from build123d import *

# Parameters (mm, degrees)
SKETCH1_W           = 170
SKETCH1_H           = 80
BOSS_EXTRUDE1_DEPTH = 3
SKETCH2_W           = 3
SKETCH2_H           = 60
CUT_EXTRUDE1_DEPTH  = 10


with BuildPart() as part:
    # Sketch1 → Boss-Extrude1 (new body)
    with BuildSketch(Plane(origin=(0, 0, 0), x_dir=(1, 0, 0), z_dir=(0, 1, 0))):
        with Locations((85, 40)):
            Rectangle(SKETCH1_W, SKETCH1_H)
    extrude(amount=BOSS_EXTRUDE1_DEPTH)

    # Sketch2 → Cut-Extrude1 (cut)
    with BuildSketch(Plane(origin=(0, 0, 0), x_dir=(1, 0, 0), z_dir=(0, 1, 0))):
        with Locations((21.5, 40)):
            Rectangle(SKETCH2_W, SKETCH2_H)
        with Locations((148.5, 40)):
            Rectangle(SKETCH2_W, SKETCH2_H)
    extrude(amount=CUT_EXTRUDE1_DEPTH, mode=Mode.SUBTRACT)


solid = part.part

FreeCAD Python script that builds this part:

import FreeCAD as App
import Part
import Sketcher
from FreeCAD import Vector
Q = App.Units.Quantity

doc = App.newDocument("Part")
body = doc.addObject("PartDesign::Body", "Body")

# Sketch on XZ plane
sketch1 = body.newObject("Sketcher::SketchObject", "Sketch")
sketch1.AttachmentSupport = (doc.getObject("XZ_Plane"), [""])
sketch1.MapMode = "FlatFace"
sketch1.addGeometry([
    Part.LineSegment(Vector(0, -80, 0), Vector(0, 0, 0)),
    Part.LineSegment(Vector(0, 0, 0), Vector(170, 0, 0)),
    Part.LineSegment(Vector(170, 0, 0), Vector(170, -80, 0)),
    Part.LineSegment(Vector(170, -80, 0), Vector(0, -80, 0)),
], False)
sketch1.addConstraint([
    Sketcher.Constraint("Coincident", 0, 2, 1, 1),
    Sketcher.Constraint("Coincident", 1, 2, 2, 1),
    Sketcher.Constraint("Coincident", 2, 2, 3, 1),
    Sketcher.Constraint("Coincident", 3, 2, 0, 1),
    Sketcher.Constraint("Vertical", 0),
    Sketcher.Constraint("Horizontal", 1),
    Sketcher.Constraint("Vertical", 2),
    Sketcher.Constraint("Horizontal", 3),
    Sketcher.Constraint("Coincident", 0, 2, -1, 1),
    Sketcher.Constraint("DistanceX", 1, 1, 1, 2, Q("170 mm")),
    Sketcher.Constraint("DistanceY", 0, 1, 0, 2, Q("80 mm")),
])
pad1 = body.newObject("PartDesign::Pad", "Pad")
pad1.Profile = sketch1
pad1.Length = 3
pad1.Reversed = True

# Sketch on XZ plane
sketch2 = body.newObject("Sketcher::SketchObject", "Sketch001")
sketch2.AttachmentSupport = (doc.getObject("XZ_Plane"), [""])
sketch2.MapMode = "FlatFace"
sketch2.addGeometry([
    Part.LineSegment(Vector(20, -70, 0), Vector(20, -10, 0)),  # 0
    Part.LineSegment(Vector(20, -10, 0), Vector(23, -10, 0)),  # 1
    Part.LineSegment(Vector(23, -10, 0), Vector(23, -70, 0)),  # 2
    Part.LineSegment(Vector(23, -70, 0), Vector(20, -70, 0)),  # 3
    Part.LineSegment(Vector(147, -70, 0), Vector(147, -10, 0)),  # 4
    Part.LineSegment(Vector(147, -10, 0), Vector(150, -10, 0)),  # 5
    Part.LineSegment(Vector(150, -10, 0), Vector(150, -70, 0)),  # 6
    Part.LineSegment(Vector(150, -70, 0), Vector(147, -70, 0)),  # 7
], False)
sketch2.addConstraint([
    Sketcher.Constraint("Coincident", 0, 2, 1, 1),
    Sketcher.Constraint("Coincident", 1, 2, 2, 1),
    Sketcher.Constraint("Coincident", 2, 2, 3, 1),
    Sketcher.Constraint("Coincident", 3, 2, 0, 1),
    Sketcher.Constraint("Coincident", 4, 2, 5, 1),
    Sketcher.Constraint("Coincident", 5, 2, 6, 1),
    Sketcher.Constraint("Coincident", 6, 2, 7, 1),
    Sketcher.Constraint("Coincident", 7, 2, 4, 1),
    Sketcher.Constraint("Vertical", 0),
    Sketcher.Constraint("Horizontal", 1),
    Sketcher.Constraint("Vertical", 2),
    Sketcher.Constraint("Horizontal", 3),
    Sketcher.Constraint("Vertical", 4),
    Sketcher.Constraint("Horizontal", 5),
    Sketcher.Constraint("Vertical", 6),
    Sketcher.Constraint("Horizontal", 7),
    Sketcher.Constraint("Horizontal", 1, 2, 4, 2),
    Sketcher.Constraint("Horizontal", 3, 2, 6, 2),
    Sketcher.Constraint("Equal", 3, 5),
    Sketcher.Constraint("DistanceX", 1, 1, 1, 2, Q("3 mm")),
    Sketcher.Constraint("DistanceY", 0, 1, 0, 2, Q("60 mm")),
    Sketcher.Constraint("DistanceX", -1, 1, 0, 2, Q("20 mm")),
    Sketcher.Constraint("DistanceY", 0, 2, -1, 1, Q("10 mm")),
    Sketcher.Constraint("DistanceX", -1, 1, 4, 2, Q("147 mm")),
])
pocket1 = body.newObject("PartDesign::Pocket", "Pocket")
pocket1.Profile = sketch2
pocket1.Length = 10

doc.recompute()
